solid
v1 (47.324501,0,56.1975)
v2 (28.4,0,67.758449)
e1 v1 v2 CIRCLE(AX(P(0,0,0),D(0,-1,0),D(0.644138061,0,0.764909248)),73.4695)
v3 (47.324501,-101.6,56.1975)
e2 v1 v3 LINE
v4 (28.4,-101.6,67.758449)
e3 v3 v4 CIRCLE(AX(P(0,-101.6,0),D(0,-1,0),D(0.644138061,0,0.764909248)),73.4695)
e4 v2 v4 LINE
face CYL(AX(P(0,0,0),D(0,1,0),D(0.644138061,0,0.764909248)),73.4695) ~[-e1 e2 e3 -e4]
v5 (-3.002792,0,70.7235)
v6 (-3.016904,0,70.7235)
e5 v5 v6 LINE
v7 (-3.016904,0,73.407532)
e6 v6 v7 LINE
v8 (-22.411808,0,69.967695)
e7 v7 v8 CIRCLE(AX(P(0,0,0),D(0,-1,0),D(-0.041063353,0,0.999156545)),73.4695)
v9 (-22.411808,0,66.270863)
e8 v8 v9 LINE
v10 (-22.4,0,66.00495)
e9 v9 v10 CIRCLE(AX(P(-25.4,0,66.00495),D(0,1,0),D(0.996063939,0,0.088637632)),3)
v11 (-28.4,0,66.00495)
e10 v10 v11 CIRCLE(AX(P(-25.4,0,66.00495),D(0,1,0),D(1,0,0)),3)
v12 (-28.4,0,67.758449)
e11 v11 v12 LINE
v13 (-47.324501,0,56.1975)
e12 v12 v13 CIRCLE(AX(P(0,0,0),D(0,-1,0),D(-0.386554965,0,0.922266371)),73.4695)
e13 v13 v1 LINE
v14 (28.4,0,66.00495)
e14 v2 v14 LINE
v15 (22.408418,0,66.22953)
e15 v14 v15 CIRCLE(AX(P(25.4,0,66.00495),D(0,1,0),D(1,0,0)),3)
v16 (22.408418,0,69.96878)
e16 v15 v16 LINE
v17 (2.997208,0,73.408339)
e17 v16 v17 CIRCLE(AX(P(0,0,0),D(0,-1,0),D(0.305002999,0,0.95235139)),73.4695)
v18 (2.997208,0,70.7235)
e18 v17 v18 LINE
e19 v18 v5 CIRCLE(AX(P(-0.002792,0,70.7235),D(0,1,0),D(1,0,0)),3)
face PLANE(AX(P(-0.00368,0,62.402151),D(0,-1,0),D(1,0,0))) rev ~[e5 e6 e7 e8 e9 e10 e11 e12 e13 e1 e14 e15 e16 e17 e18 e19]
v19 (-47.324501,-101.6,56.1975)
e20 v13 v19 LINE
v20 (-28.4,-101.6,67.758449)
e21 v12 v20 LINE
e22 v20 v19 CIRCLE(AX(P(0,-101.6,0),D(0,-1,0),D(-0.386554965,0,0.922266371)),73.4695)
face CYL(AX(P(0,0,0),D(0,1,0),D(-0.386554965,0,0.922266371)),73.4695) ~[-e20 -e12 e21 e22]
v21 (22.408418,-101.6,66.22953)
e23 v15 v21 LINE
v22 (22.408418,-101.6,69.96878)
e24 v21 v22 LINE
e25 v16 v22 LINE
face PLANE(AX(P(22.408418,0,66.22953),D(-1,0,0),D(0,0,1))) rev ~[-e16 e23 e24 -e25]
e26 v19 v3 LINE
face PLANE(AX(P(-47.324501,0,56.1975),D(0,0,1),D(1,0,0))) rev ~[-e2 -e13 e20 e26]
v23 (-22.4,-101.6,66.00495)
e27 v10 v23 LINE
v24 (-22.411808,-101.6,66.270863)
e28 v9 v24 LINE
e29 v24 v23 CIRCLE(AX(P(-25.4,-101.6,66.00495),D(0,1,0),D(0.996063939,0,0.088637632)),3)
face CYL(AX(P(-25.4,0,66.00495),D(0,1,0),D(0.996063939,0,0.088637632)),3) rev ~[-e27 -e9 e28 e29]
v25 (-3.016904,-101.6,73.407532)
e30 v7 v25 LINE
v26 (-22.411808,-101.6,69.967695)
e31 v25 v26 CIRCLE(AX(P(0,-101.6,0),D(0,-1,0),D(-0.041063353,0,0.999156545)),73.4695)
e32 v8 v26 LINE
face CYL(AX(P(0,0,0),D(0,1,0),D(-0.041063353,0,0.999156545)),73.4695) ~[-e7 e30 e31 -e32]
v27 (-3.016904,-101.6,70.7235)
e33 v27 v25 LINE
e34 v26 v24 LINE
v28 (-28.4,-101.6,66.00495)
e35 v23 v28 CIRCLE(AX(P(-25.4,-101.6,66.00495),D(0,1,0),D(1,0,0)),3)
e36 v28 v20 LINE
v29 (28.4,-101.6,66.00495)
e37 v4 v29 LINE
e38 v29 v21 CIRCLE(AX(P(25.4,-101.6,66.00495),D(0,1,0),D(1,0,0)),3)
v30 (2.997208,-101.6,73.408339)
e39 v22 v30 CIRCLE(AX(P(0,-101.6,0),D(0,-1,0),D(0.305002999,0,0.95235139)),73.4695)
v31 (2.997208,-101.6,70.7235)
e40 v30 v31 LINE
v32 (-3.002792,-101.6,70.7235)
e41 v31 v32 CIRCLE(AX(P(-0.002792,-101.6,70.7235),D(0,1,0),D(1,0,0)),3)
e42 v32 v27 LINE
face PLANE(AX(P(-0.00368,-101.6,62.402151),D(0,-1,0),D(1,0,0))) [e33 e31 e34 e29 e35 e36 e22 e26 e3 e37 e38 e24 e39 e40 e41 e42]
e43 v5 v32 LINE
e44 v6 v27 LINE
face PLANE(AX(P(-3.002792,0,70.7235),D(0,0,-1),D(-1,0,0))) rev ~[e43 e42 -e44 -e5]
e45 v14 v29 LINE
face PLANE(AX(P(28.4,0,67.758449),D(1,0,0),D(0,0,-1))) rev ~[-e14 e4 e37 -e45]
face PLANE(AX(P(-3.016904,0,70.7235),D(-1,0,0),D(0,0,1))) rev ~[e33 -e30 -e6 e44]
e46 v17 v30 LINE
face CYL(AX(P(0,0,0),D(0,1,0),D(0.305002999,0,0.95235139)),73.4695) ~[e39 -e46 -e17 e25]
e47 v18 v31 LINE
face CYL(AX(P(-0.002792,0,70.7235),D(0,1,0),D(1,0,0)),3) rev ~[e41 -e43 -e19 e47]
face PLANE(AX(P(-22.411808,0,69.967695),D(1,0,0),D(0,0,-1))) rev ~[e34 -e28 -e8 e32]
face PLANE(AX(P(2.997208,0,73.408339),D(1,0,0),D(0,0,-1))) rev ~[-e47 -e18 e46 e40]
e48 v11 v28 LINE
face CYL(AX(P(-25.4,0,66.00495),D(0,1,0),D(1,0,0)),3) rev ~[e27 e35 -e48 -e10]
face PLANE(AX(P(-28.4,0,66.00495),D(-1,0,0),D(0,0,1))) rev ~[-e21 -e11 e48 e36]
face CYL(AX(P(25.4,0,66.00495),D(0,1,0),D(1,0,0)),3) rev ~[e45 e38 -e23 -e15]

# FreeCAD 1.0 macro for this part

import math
import FreeCAD as App
import Part
import Sketcher
Q = App.Units.Quantity

doc = App.newDocument("Part")
body = doc.addObject("PartDesign::Body", "Body")

sketch1 = body.newObject("Sketcher::SketchObject", "Sketch")
sketch1.AttachmentSupport = (doc.getObject("XZ_Plane"), [""])
sketch1.MapMode = "FlatFace"
sketch1.addGeometry([
    Part.LineSegment(App.Vector(-47.324501, 56.1975, 0), App.Vector(47.324501, 56.1975, 0)),
    Part.ArcOfCircle(Part.Circle(App.Vector(0, 0, 0), App.Vector(0, 0, 1), 73.4695), math.radians(49.898919), math.radians(67.259692)),
    Part.LineSegment(App.Vector(28.4, 67.758449, 0), App.Vector(28.4, 66.00495, 0)),
    Part.ArcOfCircle(Part.Circle(App.Vector(25.4, 66.00495, 0), App.Vector(0, 0, 1), 3), math.radians(175.706818), math.radians(360)),
    Part.LineSegment(App.Vector(22.408418, 66.22953, 0), App.Vector(22.408418, 69.96878, 0)),
    Part.ArcOfCircle(Part.Circle(App.Vector(0, 0, 0), App.Vector(0, 0, 1), 73.4695), math.radians(72.241656), math.radians(87.661954)),
    Part.LineSegment(App.Vector(2.997208, 73.408339, 0), App.Vector(2.997208, 70.7235, 0)),
    Part.ArcOfCircle(Part.Circle(App.Vector(-0.002792, 70.7235, 0), App.Vector(0, 0, 1), 3), math.radians(180), math.radians(360)),
    Part.LineSegment(App.Vector(-3.002792, 70.7235, 0), App.Vector(-3.016904, 70.7235, 0)),
    Part.LineSegment(App.Vector(-3.016904, 70.7235, 0), App.Vector(-3.016904, 73.407532, 0)),
    Part.ArcOfCircle(Part.Circle(App.Vector(0, 0, 0), App.Vector(0, 0, 1), 73.4695), math.radians(92.353419), math.radians(107.761121)),
    Part.LineSegment(App.Vector(-22.411808, 69.967695, 0), App.Vector(-22.411808, 66.270863, 0)),
    Part.ArcOfCircle(Part.Circle(App.Vector(-25.4, 66.00495, 0), App.Vector(0, 0, 1), 3), math.radians(0), math.radians(5.085236)),
    Part.ArcOfCircle(Part.Circle(App.Vector(-25.4, 66.00495, 0), App.Vector(0, 0, 1), 3), math.radians(180), math.radians(360)),
    Part.LineSegment(App.Vector(-28.4, 66.00495, 0), App.Vector(-28.4, 67.758449, 0)),
    Part.ArcOfCircle(Part.Circle(App.Vector(0, 0, 0), App.Vector(0, 0, 1), 73.4695), math.radians(112.740308), math.radians(130.101081)),
], False)
sketch1.addConstraint([
    Sketcher.Constraint("Coincident", 0, 2, 1, 1),
    Sketcher.Constraint("Coincident", 1, 2, 2, 1),
    Sketcher.Constraint("Tangent", 2, 2, 3, 2),
    Sketcher.Constraint("Coincident", 3, 1, 4, 1),
    Sketcher.Constraint("Coincident", 4, 2, 5, 1),
    Sketcher.Constraint("Coincident", 5, 2, 6, 1),
    Sketcher.Constraint("Tangent", 6, 2, 7, 2),
    Sketcher.Constraint("Coincident", 7, 1, 8, 1),
    Sketcher.Constraint("Coincident", 8, 2, 9, 1),
    Sketcher.Constraint("Coincident", 9, 2, 10, 1),
    Sketcher.Constraint("Coincident", 10, 2, 11, 1),
    Sketcher.Constraint("Coincident", 11, 2, 12, 2),
    Sketcher.Constraint("Tangent", 12, 1, 13, 2),
    Sketcher.Constraint("Tangent", 13, 1, 14, 1),
    Sketcher.Constraint("Coincident", 14, 2, 15, 1),
    Sketcher.Constraint("Coincident", 15, 2, 0, 1),
    Sketcher.Constraint("Horizontal", 0),
    Sketcher.Constraint("Vertical", 2),
    Sketcher.Constraint("Vertical", 4),
    Sketcher.Constraint("Vertical", 6),
    Sketcher.Constraint("Horizontal", 8),
    Sketcher.Constraint("Vertical", 9),
    Sketcher.Constraint("Vertical", 11),
    Sketcher.Constraint("Vertical", 14),
    Sketcher.Constraint("Coincident", 1, 3, -1, 1),
    Sketcher.Constraint("Coincident", 5, 3, -1, 1),
    Sketcher.Constraint("Coincident", 10, 3, -1, 1),
    Sketcher.Constraint("Coincident", 15, 3, -1, 1),
    Sketcher.Constraint("Equal", 1, 5),
    Sketcher.Constraint("Equal", 3, 7),
    Sketcher.Constraint("Equal", 5, 10),
    Sketcher.Constraint("Equal", 7, 12),
    Sketcher.Constraint("Equal", 12, 13),
    Sketcher.Constraint("Equal", 10, 15),
    Sketcher.Constraint("Symmetric", 3, 3, 12, 3, -2),
    Sketcher.Constraint("Horizontal", 6, 2, 7, 1),
    Sketcher.Constraint("Horizontal", 2, 2, 12, 1),
    Sketcher.Constraint("DistanceX", -1, 1, 3, 3, Q("1 in")),
    Sketcher.Constraint("Radius", 1, Q("2.8925 in")),
    Sketcher.Constraint("Radius", 3, Q("3 mm")),
    Sketcher.Constraint("DistanceY", 2, 2, 2, 1, Q("1.753499 mm")),
    Sketcher.Constraint("DistanceY", -1, 1, 0, 2, Q("2.2125 in")),
    Sketcher.Constraint("DistanceY", 4, 1, 4, 2, Q("3.73925 mm")),
    Sketcher.Constraint("DistanceY", 6, 2, 6, 1, Q("2.684839 mm")),
    Sketcher.Constraint("DistanceY", 9, 1, 9, 2, Q("2.684032 mm")),
    Sketcher.Constraint("DistanceY", 11, 2, 11, 1, Q("3.696831 mm")),
    Sketcher.Constraint("DistanceY", -1, 1, 7, 3, Q("70.7235 mm")),
])
pad1 = body.newObject("PartDesign::Pad", "Pad")
pad1.Profile = sketch1
pad1.Length = Q("4 in")

doc.recompute()
